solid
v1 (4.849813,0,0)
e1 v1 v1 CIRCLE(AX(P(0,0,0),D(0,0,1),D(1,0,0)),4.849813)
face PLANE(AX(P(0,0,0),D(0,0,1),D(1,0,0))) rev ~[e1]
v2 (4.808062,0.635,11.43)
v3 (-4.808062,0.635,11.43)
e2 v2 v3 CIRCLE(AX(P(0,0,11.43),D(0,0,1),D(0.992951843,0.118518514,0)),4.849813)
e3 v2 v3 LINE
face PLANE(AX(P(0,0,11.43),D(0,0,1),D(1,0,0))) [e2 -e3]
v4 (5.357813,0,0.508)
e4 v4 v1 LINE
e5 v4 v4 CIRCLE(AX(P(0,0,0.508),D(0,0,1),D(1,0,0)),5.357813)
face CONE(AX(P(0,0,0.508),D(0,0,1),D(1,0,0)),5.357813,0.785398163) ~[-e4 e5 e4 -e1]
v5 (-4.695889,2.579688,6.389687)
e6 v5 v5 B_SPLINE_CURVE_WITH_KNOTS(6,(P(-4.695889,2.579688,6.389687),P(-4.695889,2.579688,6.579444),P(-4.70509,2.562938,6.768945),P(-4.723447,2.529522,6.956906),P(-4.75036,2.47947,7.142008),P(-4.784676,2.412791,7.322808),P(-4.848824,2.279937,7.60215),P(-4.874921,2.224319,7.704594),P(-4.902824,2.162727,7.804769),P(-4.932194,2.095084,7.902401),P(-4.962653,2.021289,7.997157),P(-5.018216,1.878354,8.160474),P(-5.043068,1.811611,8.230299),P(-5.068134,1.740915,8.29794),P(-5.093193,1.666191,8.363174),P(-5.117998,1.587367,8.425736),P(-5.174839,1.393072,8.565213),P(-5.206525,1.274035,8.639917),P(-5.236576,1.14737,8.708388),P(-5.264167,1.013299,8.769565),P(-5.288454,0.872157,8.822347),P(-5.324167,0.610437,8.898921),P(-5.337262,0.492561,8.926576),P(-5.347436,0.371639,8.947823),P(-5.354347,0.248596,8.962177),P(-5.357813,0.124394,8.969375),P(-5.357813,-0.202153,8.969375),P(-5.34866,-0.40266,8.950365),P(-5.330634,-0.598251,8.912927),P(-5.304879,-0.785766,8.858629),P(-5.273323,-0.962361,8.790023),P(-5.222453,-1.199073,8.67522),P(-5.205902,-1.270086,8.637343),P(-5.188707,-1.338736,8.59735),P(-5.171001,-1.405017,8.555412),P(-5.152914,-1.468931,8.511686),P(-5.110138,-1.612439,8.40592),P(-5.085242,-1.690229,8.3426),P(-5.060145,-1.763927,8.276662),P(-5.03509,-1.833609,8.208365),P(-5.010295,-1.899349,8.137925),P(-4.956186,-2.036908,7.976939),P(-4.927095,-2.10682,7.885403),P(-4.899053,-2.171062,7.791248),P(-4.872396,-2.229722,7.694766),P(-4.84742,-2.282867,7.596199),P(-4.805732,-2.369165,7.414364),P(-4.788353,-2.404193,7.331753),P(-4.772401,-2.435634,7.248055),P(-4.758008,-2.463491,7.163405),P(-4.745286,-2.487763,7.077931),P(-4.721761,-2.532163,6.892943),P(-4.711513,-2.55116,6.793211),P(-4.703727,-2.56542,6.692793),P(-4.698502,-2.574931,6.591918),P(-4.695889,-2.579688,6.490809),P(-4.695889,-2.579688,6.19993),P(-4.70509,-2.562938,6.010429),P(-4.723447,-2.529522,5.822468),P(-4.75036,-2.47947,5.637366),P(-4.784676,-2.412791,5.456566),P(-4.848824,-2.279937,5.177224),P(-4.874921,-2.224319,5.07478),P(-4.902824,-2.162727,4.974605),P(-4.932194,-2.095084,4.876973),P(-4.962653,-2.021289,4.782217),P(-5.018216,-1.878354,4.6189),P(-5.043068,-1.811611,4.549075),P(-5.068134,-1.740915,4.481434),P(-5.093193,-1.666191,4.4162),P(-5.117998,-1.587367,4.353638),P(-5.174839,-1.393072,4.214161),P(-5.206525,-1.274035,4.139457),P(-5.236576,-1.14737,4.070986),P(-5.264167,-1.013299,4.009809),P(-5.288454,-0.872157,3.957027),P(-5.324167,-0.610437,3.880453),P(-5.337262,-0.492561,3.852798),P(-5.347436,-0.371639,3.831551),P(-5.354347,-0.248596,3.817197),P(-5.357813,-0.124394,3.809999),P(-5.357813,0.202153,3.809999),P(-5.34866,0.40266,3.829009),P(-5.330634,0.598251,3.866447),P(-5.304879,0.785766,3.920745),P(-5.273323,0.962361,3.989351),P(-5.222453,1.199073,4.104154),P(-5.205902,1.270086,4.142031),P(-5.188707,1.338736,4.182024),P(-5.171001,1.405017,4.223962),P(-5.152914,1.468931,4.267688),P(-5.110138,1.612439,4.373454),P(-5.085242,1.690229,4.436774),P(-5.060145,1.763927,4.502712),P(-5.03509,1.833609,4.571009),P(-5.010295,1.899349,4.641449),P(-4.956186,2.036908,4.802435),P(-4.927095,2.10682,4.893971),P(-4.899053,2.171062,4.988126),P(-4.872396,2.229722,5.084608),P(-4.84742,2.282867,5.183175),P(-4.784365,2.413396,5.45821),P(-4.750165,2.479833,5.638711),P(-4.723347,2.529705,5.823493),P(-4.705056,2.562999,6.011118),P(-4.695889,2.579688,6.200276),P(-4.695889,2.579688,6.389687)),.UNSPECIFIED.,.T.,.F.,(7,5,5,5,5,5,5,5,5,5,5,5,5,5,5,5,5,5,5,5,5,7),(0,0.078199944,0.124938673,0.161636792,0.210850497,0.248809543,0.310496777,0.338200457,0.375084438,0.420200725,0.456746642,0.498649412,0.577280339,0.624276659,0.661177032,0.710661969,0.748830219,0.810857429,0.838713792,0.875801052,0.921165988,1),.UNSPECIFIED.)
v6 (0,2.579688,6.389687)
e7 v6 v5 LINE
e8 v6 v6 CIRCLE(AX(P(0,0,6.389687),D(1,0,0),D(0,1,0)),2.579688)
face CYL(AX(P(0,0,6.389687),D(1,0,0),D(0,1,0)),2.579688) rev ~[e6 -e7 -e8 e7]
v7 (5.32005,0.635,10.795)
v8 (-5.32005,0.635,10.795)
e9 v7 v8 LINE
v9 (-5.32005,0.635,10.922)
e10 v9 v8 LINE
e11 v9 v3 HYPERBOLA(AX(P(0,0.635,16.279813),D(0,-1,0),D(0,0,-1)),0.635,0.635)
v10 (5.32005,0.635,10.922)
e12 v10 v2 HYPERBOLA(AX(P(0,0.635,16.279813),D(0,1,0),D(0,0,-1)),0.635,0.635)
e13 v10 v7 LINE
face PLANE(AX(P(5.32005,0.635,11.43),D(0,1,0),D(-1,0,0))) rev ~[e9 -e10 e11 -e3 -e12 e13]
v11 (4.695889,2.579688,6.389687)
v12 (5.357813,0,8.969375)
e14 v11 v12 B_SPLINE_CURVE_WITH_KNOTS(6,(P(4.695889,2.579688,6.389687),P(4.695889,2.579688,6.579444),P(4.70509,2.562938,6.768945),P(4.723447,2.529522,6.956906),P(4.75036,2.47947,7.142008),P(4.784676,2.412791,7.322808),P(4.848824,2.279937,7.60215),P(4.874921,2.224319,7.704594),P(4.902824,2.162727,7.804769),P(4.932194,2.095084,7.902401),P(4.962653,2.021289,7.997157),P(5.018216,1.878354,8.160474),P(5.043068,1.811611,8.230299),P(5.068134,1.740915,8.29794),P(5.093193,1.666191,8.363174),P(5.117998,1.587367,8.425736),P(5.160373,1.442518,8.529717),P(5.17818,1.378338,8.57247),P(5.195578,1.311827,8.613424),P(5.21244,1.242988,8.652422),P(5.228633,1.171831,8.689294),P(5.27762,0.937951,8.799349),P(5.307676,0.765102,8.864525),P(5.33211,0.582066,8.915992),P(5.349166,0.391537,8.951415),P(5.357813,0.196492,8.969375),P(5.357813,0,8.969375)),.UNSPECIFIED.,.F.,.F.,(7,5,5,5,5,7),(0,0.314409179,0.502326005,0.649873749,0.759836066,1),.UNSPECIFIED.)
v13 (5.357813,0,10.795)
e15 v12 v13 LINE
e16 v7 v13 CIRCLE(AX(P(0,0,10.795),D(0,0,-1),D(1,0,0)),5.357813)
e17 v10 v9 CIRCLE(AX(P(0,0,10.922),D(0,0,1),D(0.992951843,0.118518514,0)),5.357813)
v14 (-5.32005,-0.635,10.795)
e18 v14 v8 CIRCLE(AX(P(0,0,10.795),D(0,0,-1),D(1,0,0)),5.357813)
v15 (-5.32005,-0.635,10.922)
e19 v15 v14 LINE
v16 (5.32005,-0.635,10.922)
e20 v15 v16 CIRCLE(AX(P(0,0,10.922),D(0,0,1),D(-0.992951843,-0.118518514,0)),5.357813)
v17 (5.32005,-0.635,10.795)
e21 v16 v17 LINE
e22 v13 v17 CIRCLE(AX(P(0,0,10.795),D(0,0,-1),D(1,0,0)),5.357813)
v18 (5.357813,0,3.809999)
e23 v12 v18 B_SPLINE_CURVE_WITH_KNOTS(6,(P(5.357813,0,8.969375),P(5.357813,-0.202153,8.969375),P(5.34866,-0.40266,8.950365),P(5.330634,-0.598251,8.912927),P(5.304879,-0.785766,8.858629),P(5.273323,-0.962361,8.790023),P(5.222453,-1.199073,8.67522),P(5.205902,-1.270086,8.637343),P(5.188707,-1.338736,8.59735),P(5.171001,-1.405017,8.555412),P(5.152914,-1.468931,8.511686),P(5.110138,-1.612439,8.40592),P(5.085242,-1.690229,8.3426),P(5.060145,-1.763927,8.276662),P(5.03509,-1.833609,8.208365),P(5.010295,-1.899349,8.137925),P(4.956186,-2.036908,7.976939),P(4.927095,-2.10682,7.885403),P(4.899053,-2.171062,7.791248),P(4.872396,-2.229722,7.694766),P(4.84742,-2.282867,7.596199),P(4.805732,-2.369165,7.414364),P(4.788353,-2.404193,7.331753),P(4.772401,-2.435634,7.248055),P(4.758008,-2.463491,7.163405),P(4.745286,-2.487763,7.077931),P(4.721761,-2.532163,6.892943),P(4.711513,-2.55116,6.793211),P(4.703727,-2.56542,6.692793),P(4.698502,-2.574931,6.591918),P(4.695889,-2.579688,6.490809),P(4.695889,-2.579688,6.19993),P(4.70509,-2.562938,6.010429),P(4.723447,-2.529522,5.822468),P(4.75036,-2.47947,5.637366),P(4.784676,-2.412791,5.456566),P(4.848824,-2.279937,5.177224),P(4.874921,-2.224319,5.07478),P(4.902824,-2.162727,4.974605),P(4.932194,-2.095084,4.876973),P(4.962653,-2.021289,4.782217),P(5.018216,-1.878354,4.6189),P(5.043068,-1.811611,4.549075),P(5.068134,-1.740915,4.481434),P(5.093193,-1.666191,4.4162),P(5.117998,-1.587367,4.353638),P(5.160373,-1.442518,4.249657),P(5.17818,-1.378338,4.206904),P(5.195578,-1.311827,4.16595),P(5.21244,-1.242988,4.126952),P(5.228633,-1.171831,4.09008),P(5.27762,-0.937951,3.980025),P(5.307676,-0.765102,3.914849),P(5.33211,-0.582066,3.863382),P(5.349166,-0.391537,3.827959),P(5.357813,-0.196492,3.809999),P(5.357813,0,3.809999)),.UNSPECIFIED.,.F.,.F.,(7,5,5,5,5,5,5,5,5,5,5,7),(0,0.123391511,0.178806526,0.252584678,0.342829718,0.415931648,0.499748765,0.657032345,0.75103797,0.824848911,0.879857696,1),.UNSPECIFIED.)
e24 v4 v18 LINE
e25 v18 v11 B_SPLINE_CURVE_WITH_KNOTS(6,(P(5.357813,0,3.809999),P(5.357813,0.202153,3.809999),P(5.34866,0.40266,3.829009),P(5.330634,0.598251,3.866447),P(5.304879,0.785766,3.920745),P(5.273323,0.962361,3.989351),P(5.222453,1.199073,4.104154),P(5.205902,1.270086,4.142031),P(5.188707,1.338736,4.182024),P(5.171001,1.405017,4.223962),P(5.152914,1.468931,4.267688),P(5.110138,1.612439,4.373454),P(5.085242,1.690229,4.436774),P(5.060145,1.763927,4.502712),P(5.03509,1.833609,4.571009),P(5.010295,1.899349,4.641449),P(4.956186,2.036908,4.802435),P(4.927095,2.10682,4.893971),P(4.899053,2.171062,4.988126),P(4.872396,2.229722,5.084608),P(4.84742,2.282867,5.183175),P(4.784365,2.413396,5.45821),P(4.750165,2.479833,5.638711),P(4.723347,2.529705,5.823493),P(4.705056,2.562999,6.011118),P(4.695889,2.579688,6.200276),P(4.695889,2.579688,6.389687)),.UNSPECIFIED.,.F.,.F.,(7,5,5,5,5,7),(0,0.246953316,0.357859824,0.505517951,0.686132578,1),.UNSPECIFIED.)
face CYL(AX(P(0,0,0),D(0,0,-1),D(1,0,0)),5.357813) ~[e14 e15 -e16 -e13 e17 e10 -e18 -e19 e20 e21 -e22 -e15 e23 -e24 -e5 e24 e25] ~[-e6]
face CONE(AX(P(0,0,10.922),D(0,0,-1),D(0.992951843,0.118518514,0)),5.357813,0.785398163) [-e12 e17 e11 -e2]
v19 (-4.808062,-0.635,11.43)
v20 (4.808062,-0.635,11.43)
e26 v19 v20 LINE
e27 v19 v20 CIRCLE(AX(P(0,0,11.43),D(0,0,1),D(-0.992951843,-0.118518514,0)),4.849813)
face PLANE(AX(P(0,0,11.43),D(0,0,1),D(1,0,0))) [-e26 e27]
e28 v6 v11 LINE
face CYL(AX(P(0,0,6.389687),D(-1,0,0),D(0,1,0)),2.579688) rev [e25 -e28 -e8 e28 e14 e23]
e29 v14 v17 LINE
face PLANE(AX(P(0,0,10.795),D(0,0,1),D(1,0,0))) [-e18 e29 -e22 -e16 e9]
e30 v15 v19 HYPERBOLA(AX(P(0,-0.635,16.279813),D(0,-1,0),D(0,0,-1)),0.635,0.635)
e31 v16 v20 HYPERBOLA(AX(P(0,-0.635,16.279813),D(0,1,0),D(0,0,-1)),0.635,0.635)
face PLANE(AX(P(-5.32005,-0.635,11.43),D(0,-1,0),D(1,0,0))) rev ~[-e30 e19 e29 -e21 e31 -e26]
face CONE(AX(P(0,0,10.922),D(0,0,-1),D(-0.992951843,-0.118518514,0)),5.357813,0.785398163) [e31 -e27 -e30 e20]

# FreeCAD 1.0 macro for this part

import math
import FreeCAD as App
import Part
import Sketcher

V = App.Vector
Q = App.Units.Quantity


def edges_at(feature, points):
    """Names of the edges that pass closest to the given points."""
    edges = feature.Shape.Edges
    near = lambda p: min(range(len(edges)), key=lambda i: edges[i].distToShape(Part.Vertex(*p))[0])
    return sorted({f"Edge{near(p) + 1}" for p in points})

doc = App.newDocument("Part")
params = doc.addObject("Spreadsheet::Sheet", "Params")
for row, (alias, value) in enumerate([
    ("sketch1_diameter", "0.421875 in"),
    ("pad1_length", "0.45 in"),
    ("sketch2_diameter", "0.203125 in"),
    ("pocket2_length", "0.025 in"),
    ("chamfer_size", "0.02 in"),
], start=1):
    params.set(f"A{row}", alias)
    params.set(f"B{row}", "=" + value)
    params.setAlias(f"B{row}", alias)

body = doc.addObject("PartDesign::Body", "Body")

# Sketch on XY plane
sketch1 = body.newObject("Sketcher::SketchObject", "Sketch")
sketch1.AttachmentSupport = (doc.getObject("XY_Plane"), [""])
sketch1.MapMode = "FlatFace"
sketch1.addGeometry(Part.Circle(V(0, 0, 0), V(0, 0, 1), 5), False)
sketch1.addConstraint([
    Sketcher.Constraint("Coincident", 0, 3, -1, 1),
    Sketcher.Constraint("Diameter", 0, Q("0.421875 in")),
])
sketch1.setExpression("Constraints[1]", "Params.sketch1_diameter")
pad1 = body.newObject("PartDesign::Pad", "Pad")
pad1.Profile = sketch1
pad1.setExpression("Length", "Params.pad1_length")

# Sketch on YZ plane
sketch2 = body.newObject("Sketcher::SketchObject", "Sketch001")
sketch2.AttachmentSupport = (doc.getObject("YZ_Plane"), [""])
sketch2.MapMode = "FlatFace"
sketch2.addGeometry(Part.Circle(V(0, 6.4, 0), V(0, 0, 1), 2.6), False)
sketch2.addConstraint([
    Sketcher.Constraint("PointOnObject", 0, 3, -2),
    Sketcher.Constraint("Diameter", 0, Q("0.203125 in")),
    Sketcher.Constraint("DistanceY", -1, 1, 0, 3, Q("6.389687 mm")),
])
sketch2.setExpression("Constraints[1]", "Params.sketch2_diameter")
pocket1 = body.newObject("PartDesign::Pocket", "Pocket")
pocket1.Profile = sketch2
pocket1.Type = "ThroughAll"
pocket1.Midplane = True

# Sketch on XY plane
sketch3 = body.newObject("Sketcher::SketchObject", "Sketch002")
sketch3.AttachmentSupport = (doc.getObject("XY_Plane"), [""])
sketch3.MapMode = "FlatFace"
sketch3.AttachmentOffset = App.Placement(V(0, 0, 0.45 * 25.4), App.Rotation())
sketch3.addGeometry([
    Part.LineSegment(V(5.3, 0.6, 0), V(-5.3, 0.6, 0)),
    Part.ArcOfCircle(Part.Circle(V(-2, 0, 0), V(0, 0, 1), 3.4), math.radians(169), math.radians(191)),
    Part.LineSegment(V(-5.3, -0.6, 0), V(5.3, -0.6, 0)),
    Part.ArcOfCircle(Part.Circle(V(2, 0, 0), V(0, 0, 1), 3.4), math.radians(-11), math.radians(11)),
], False)
sketch3.addConstraint([
    Sketcher.Constraint("Coincident", 0, 2, 1, 1),
    Sketcher.Constraint("Coincident", 1, 2, 2, 1),
    Sketcher.Constraint("Coincident", 2, 2, 3, 1),
    Sketcher.Constraint("Coincident", 3, 2, 0, 1),
    Sketcher.Constraint("Horizontal", 0),
    Sketcher.Constraint("Horizontal", 2),
    Sketcher.Constraint("Equal", 1, 3),
    Sketcher.Constraint("Symmetric", 1, 3, 3, 3, -1, 1),
    Sketcher.Constraint("Symmetric", 0, 2, 1, 2, -1),
    Sketcher.Constraint("DistanceY", 1, 2, 0, 2, Q("0.05 in")),
    Sketcher.Constraint("DistanceX", 0, 2, 0, 1, Q("10.6401 mm")),
    Sketcher.Constraint("Radius", 1, Q("3.403136 mm")),
])
pocket2 = body.newObject("PartDesign::Pocket", "Pocket001")
pocket2.Profile = sketch3
pocket2.setExpression("Length", "Params.pocket2_length")
doc.recompute()

chamfer = body.newObject("PartDesign::Chamfer", "Chamfer")
chamfer.Base = (pocket2, edges_at(pocket2, [(0, -5.358, 11.43), (0, 5.358, 11.43), (-5.358, 0, 0)]))
chamfer.setExpression("Size", "Params.chamfer_size")

doc.recompute()
